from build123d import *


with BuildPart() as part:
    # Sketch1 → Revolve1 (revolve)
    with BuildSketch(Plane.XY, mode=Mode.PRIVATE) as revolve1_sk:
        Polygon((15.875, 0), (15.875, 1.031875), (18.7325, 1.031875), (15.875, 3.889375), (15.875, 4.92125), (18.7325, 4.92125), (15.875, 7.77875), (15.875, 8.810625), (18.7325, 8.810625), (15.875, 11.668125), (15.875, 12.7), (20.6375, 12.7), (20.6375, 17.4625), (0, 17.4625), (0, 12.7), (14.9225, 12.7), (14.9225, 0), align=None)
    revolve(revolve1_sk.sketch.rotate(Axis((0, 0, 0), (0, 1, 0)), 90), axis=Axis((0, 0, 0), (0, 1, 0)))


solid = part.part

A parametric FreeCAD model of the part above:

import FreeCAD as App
import Part
import Sketcher

V = App.Vector
Q = App.Units.Quantity

doc = App.newDocument("Part")
body = doc.addObject("PartDesign::Body", "Body")

sketch1 = body.newObject("Sketcher::SketchObject", "Sketch")
sketch1.AttachmentSupport = (doc.getObject("XY_Plane"), [""])
sketch1.MapMode = "FlatFace"
sketch1.addGeometry([
    Part.LineSegment(V(15.875, 0, 0), V(15.875, 1.031875, 0)),
    Part.LineSegment(V(15.875, 1.031875, 0), V(18.7325, 1.031875, 0)),
    Part.LineSegment(V(18.7325, 1.031875, 0), V(15.875, 3.889375, 0)),
    Part.LineSegment(V(15.875, 3.889375, 0), V(15.875, 4.92125, 0)),
    Part.LineSegment(V(15.875, 4.92125, 0), V(18.7325, 4.92125, 0)),
    Part.LineSegment(V(18.7325, 4.92125, 0), V(15.875, 7.77875, 0)),
    Part.LineSegment(V(15.875, 7.77875, 0), V(15.875, 8.810625, 0)),
    Part.LineSegment(V(15.875, 8.810625, 0), V(18.7325, 8.810625, 0)),
    Part.LineSegment(V(18.7325, 8.810625, 0), V(15.875, 11.668125, 0)),
    Part.LineSegment(V(15.875, 11.668125, 0), V(15.875, 12.7, 0)),
    Part.LineSegment(V(15.875, 12.7, 0), V(20.6375, 12.7, 0)),
    Part.LineSegment(V(20.6375, 12.7, 0), V(20.6375, 17.4625, 0)),
    Part.LineSegment(V(20.6375, 17.4625, 0), V(0, 17.4625, 0)),
    Part.LineSegment(V(0, 17.4625, 0), V(0, 12.7, 0)),
    Part.LineSegment(V(0, 12.7, 0), V(14.9225, 12.7, 0)),
    Part.LineSegment(V(14.9225, 12.7, 0), V(14.9225, 0, 0)),
    Part.LineSegment(V(14.9225, 0, 0), V(15.875, 0, 0)),
], False)
sketch1.addConstraint([
    Sketcher.Constraint("Coincident", 0, 2, 1, 1),
    Sketcher.Constraint("Coincident", 1, 2, 2, 1),
    Sketcher.Constraint("Coincident", 2, 2, 3, 1),
    Sketcher.Constraint("Coincident", 3, 2, 4, 1),
    Sketcher.Constraint("Coincident", 4, 2, 5, 1),
    Sketcher.Constraint("Coincident", 5, 2, 6, 1),
    Sketcher.Constraint("Coincident", 6, 2, 7, 1),
    Sketcher.Constraint("Coincident", 7, 2, 8, 1),
    Sketcher.Constraint("Coincident", 8, 2, 9, 1),
    Sketcher.Constraint("Coincident", 9, 2, 10, 1),
    Sketcher.Constraint("Coincident", 10, 2, 11, 1),
    Sketcher.Constraint("Coincident", 11, 2, 12, 1),
    Sketcher.Constraint("Coincident", 12, 2, 13, 1),
    Sketcher.Constraint("Coincident", 13, 2, 14, 1),
    Sketcher.Constraint("Coincident", 14, 2, 15, 1),
    Sketcher.Constraint("Coincident", 15, 2, 16, 1),
    Sketcher.Constraint("Coincident", 16, 2, 0, 1),
    Sketcher.Constraint("Vertical", 0),
    Sketcher.Constraint("Horizontal", 1),
    Sketcher.Constraint("Vertical", 3),
    Sketcher.Constraint("Horizontal", 4),
    Sketcher.Constraint("Vertical", 6),
    Sketcher.Constraint("Horizontal", 7),
    Sketcher.Constraint("Vertical", 9),
    Sketcher.Constraint("Horizontal", 10),
    Sketcher.Constraint("Vertical", 11),
    Sketcher.Constraint("Horizontal", 12),
    Sketcher.Constraint("Vertical", 13),
    Sketcher.Constraint("Horizontal", 14),
    Sketcher.Constraint("Vertical", 15),
    Sketcher.Constraint("Horizontal", 16),
    Sketcher.Constraint("PointOnObject", 12, 2, -2),
    Sketcher.Constraint("PointOnObject", 15, 2, -1),
    Sketcher.Constraint("Parallel", 2, 5),
    Sketcher.Constraint("Parallel", 5, 8),
    Sketcher.Constraint("Horizontal", 10, 2, 13, 2),
    Sketcher.Constraint("Vertical", 0, 2, 2, 2),
    Sketcher.Constraint("Vertical", 1, 2, 4, 2),
    Sketcher.Constraint("Vertical", 3, 2, 5, 2),
    Sketcher.Constraint("Vertical", 4, 2, 7, 2),
    Sketcher.Constraint("Vertical", 6, 2, 8, 2),
    Sketcher.Constraint("Equal", 0, 3),
    Sketcher.Constraint("Equal", 3, 6),
    Sketcher.Constraint("Equal", 6, 9),
    Sketcher.Constraint("Equal", 10, 11),
    Sketcher.Constraint("DistanceY", 15, 2, 15, 1, Q("0.5 in")),
    Sketcher.Constraint("Angle", 2, Q("135 deg")),
    Sketcher.Constraint("DistanceX", 10, 1, 10, 2, Q("0.1875 in")),
    Sketcher.Constraint("DistanceX", 12, 2, 12, 1, Q("0.8125 in")),
    Sketcher.Constraint("DistanceX", 14, 2, 7, 2, Q("0.15 in")),
    Sketcher.Constraint("DistanceX", 1, 1, 1, 2, Q("0.1125 in")),
])
revolution = body.newObject("PartDesign::Revolution", "Revolution")
revolution.Profile = sketch1
revolution.ReferenceAxis = (sketch1, ["V_Axis"])
revolution.Angle = 360

doc.recompute()
